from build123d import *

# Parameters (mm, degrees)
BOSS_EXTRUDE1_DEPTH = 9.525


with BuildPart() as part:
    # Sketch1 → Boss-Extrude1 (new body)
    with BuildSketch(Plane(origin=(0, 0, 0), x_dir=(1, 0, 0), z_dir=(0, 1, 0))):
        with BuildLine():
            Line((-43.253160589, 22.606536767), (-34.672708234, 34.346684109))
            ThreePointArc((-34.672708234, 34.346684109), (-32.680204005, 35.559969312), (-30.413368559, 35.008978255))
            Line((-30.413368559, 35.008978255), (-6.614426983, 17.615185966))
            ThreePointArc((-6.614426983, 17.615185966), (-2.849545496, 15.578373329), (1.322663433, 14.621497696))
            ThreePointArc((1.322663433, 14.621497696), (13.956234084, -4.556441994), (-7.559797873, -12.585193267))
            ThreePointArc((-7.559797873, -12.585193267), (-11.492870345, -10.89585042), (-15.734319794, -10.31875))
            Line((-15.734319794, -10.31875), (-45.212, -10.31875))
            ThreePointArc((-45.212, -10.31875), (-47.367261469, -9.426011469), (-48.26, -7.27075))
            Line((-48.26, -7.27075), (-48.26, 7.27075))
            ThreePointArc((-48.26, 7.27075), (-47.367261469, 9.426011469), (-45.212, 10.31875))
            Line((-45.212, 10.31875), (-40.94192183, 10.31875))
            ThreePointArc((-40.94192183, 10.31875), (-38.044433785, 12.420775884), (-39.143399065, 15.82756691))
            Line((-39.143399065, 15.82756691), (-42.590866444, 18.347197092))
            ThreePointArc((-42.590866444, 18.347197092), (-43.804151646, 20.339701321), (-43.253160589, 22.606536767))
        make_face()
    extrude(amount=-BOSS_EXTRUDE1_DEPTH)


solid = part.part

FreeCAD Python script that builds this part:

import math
import FreeCAD as App
import Part
import Sketcher
Q = App.Units.Quantity

doc = App.newDocument("Part")
body = doc.addObject("PartDesign::Body", "Body")

sketch1 = body.newObject("Sketcher::SketchObject", "Sketch")
sketch1.AttachmentSupport = (doc.getObject("XZ_Plane"), [""])
sketch1.MapMode = "FlatFace"
sketch1.addGeometry([
    Part.LineSegment(App.Vector(-34.7, -34.3, 0), App.Vector(-43.3, -22.6, 0)),
    Part.ArcOfCircle(Part.Circle(App.Vector(-40.8, -20.8, 0), App.Vector(0, 0, 1), 3), math.radians(126), math.radians(216)),
    Part.LineSegment(App.Vector(-42.6, -18.3, 0), App.Vector(-39.1, -15.8, 0)),
    Part.ArcOfCircle(Part.Circle(App.Vector(-40.9, -13.4, 0), App.Vector(0, 0, 1), 3), math.radians(-54), math.radians(90)),
    Part.LineSegment(App.Vector(-40.9, -10.3, 0), App.Vector(-45.2, -10.3, 0)),
    Part.ArcOfCircle(Part.Circle(App.Vector(-45.2, -7.3, 0), App.Vector(0, 0, 1), 3), math.radians(180), math.radians(270)),
    Part.LineSegment(App.Vector(-48.3, -7.3, 0), App.Vector(-48.3, 7.3, 0)),
    Part.ArcOfCircle(Part.Circle(App.Vector(-45.2, 7.3, 0), App.Vector(0, 0, 1), 3), math.radians(90), math.radians(180)),
    Part.LineSegment(App.Vector(-45.2, 10.3, 0), App.Vector(-15.7, 10.3, 0)),
    Part.ArcOfCircle(Part.Circle(App.Vector(-15.7, 26.2, 0), App.Vector(0, 0, 1), 15.9), math.radians(-90), math.radians(-59)),
    Part.ArcOfCircle(Part.Circle(App.Vector(0, 0, 0), App.Vector(0, 0, 1), 14.7), math.radians(-85), math.radians(121)),
    Part.ArcOfCircle(Part.Circle(App.Vector(2.8, -30.4, 0), App.Vector(0, 0, 1), 15.9), math.radians(95), math.radians(126)),
    Part.LineSegment(App.Vector(-6.6, -17.6, 0), App.Vector(-30.4, -35, 0)),
    Part.ArcOfCircle(Part.Circle(App.Vector(-32.2, -32.5, 0), App.Vector(0, 0, 1), 3), math.radians(-144), math.radians(-54)),
], False)
sketch1.addConstraint([
    Sketcher.Constraint("Tangent", 0, 2, 1, 2),
    Sketcher.Constraint("Tangent", 1, 1, 2, 1),
    Sketcher.Constraint("Tangent", 2, 2, 3, 1),
    Sketcher.Constraint("Tangent", 3, 2, 4, 1),
    Sketcher.Constraint("Tangent", 4, 2, 5, 2),
    Sketcher.Constraint("Tangent", 5, 1, 6, 1),
    Sketcher.Constraint("Tangent", 6, 2, 7, 2),
    Sketcher.Constraint("Tangent", 7, 1, 8, 1),
    Sketcher.Constraint("Tangent", 8, 2, 9, 1),
    Sketcher.Constraint("Tangent", 9, 2, 10, 2),
    Sketcher.Constraint("Tangent", 10, 1, 11, 1),
    Sketcher.Constraint("Tangent", 11, 2, 12, 1),
    Sketcher.Constraint("Tangent", 12, 2, 13, 2),
    Sketcher.Constraint("Tangent", 13, 1, 0, 1),
    Sketcher.Constraint("Horizontal", 4),
    Sketcher.Constraint("Vertical", 6),
    Sketcher.Constraint("Horizontal", 8),
    Sketcher.Constraint("Coincident", 10, 3, -1, 1),
    Sketcher.Constraint("Equal", 1, 3),
    Sketcher.Constraint("Equal", 3, 5),
    Sketcher.Constraint("Equal", 5, 7),
    Sketcher.Constraint("Equal", 9, 11),
    Sketcher.Constraint("Equal", 7, 13),
    Sketcher.Constraint("Perpendicular", 0, 2),
    Sketcher.Constraint("Parallel", 2, 12),
    Sketcher.Constraint("Radius", 1, Q("0.12 in")),
    Sketcher.Constraint("Radius", 9, Q("0.625 in")),
    Sketcher.Constraint("Radius", 10, Q("0.578 in")),
    Sketcher.Constraint("DistanceX", 5, 1, -1, 1, Q("1.9 in")),
    Sketcher.Constraint("DistanceY", 6, 1, 6, 2, Q("0.5725 in")),
    Sketcher.Constraint("DistanceY", -1, 1, 9, 3, Q("1.03125 in")),
    Sketcher.Constraint("Distance", 0, Q("0.5725 in")),
    Sketcher.Constraint("DistanceX", 4, 2, 4, 1, Q("4.270078 mm")),
    Sketcher.Constraint("DistanceX", 2, 2, -1, 1, Q("39.143399 mm")),
    Sketcher.Constraint("Distance", 2, Q("4.270078 mm")),
])
pad1 = body.newObject("PartDesign::Pad", "Pad")
pad1.Profile = sketch1
pad1.Length = Q("0.375 in")

doc.recompute()
